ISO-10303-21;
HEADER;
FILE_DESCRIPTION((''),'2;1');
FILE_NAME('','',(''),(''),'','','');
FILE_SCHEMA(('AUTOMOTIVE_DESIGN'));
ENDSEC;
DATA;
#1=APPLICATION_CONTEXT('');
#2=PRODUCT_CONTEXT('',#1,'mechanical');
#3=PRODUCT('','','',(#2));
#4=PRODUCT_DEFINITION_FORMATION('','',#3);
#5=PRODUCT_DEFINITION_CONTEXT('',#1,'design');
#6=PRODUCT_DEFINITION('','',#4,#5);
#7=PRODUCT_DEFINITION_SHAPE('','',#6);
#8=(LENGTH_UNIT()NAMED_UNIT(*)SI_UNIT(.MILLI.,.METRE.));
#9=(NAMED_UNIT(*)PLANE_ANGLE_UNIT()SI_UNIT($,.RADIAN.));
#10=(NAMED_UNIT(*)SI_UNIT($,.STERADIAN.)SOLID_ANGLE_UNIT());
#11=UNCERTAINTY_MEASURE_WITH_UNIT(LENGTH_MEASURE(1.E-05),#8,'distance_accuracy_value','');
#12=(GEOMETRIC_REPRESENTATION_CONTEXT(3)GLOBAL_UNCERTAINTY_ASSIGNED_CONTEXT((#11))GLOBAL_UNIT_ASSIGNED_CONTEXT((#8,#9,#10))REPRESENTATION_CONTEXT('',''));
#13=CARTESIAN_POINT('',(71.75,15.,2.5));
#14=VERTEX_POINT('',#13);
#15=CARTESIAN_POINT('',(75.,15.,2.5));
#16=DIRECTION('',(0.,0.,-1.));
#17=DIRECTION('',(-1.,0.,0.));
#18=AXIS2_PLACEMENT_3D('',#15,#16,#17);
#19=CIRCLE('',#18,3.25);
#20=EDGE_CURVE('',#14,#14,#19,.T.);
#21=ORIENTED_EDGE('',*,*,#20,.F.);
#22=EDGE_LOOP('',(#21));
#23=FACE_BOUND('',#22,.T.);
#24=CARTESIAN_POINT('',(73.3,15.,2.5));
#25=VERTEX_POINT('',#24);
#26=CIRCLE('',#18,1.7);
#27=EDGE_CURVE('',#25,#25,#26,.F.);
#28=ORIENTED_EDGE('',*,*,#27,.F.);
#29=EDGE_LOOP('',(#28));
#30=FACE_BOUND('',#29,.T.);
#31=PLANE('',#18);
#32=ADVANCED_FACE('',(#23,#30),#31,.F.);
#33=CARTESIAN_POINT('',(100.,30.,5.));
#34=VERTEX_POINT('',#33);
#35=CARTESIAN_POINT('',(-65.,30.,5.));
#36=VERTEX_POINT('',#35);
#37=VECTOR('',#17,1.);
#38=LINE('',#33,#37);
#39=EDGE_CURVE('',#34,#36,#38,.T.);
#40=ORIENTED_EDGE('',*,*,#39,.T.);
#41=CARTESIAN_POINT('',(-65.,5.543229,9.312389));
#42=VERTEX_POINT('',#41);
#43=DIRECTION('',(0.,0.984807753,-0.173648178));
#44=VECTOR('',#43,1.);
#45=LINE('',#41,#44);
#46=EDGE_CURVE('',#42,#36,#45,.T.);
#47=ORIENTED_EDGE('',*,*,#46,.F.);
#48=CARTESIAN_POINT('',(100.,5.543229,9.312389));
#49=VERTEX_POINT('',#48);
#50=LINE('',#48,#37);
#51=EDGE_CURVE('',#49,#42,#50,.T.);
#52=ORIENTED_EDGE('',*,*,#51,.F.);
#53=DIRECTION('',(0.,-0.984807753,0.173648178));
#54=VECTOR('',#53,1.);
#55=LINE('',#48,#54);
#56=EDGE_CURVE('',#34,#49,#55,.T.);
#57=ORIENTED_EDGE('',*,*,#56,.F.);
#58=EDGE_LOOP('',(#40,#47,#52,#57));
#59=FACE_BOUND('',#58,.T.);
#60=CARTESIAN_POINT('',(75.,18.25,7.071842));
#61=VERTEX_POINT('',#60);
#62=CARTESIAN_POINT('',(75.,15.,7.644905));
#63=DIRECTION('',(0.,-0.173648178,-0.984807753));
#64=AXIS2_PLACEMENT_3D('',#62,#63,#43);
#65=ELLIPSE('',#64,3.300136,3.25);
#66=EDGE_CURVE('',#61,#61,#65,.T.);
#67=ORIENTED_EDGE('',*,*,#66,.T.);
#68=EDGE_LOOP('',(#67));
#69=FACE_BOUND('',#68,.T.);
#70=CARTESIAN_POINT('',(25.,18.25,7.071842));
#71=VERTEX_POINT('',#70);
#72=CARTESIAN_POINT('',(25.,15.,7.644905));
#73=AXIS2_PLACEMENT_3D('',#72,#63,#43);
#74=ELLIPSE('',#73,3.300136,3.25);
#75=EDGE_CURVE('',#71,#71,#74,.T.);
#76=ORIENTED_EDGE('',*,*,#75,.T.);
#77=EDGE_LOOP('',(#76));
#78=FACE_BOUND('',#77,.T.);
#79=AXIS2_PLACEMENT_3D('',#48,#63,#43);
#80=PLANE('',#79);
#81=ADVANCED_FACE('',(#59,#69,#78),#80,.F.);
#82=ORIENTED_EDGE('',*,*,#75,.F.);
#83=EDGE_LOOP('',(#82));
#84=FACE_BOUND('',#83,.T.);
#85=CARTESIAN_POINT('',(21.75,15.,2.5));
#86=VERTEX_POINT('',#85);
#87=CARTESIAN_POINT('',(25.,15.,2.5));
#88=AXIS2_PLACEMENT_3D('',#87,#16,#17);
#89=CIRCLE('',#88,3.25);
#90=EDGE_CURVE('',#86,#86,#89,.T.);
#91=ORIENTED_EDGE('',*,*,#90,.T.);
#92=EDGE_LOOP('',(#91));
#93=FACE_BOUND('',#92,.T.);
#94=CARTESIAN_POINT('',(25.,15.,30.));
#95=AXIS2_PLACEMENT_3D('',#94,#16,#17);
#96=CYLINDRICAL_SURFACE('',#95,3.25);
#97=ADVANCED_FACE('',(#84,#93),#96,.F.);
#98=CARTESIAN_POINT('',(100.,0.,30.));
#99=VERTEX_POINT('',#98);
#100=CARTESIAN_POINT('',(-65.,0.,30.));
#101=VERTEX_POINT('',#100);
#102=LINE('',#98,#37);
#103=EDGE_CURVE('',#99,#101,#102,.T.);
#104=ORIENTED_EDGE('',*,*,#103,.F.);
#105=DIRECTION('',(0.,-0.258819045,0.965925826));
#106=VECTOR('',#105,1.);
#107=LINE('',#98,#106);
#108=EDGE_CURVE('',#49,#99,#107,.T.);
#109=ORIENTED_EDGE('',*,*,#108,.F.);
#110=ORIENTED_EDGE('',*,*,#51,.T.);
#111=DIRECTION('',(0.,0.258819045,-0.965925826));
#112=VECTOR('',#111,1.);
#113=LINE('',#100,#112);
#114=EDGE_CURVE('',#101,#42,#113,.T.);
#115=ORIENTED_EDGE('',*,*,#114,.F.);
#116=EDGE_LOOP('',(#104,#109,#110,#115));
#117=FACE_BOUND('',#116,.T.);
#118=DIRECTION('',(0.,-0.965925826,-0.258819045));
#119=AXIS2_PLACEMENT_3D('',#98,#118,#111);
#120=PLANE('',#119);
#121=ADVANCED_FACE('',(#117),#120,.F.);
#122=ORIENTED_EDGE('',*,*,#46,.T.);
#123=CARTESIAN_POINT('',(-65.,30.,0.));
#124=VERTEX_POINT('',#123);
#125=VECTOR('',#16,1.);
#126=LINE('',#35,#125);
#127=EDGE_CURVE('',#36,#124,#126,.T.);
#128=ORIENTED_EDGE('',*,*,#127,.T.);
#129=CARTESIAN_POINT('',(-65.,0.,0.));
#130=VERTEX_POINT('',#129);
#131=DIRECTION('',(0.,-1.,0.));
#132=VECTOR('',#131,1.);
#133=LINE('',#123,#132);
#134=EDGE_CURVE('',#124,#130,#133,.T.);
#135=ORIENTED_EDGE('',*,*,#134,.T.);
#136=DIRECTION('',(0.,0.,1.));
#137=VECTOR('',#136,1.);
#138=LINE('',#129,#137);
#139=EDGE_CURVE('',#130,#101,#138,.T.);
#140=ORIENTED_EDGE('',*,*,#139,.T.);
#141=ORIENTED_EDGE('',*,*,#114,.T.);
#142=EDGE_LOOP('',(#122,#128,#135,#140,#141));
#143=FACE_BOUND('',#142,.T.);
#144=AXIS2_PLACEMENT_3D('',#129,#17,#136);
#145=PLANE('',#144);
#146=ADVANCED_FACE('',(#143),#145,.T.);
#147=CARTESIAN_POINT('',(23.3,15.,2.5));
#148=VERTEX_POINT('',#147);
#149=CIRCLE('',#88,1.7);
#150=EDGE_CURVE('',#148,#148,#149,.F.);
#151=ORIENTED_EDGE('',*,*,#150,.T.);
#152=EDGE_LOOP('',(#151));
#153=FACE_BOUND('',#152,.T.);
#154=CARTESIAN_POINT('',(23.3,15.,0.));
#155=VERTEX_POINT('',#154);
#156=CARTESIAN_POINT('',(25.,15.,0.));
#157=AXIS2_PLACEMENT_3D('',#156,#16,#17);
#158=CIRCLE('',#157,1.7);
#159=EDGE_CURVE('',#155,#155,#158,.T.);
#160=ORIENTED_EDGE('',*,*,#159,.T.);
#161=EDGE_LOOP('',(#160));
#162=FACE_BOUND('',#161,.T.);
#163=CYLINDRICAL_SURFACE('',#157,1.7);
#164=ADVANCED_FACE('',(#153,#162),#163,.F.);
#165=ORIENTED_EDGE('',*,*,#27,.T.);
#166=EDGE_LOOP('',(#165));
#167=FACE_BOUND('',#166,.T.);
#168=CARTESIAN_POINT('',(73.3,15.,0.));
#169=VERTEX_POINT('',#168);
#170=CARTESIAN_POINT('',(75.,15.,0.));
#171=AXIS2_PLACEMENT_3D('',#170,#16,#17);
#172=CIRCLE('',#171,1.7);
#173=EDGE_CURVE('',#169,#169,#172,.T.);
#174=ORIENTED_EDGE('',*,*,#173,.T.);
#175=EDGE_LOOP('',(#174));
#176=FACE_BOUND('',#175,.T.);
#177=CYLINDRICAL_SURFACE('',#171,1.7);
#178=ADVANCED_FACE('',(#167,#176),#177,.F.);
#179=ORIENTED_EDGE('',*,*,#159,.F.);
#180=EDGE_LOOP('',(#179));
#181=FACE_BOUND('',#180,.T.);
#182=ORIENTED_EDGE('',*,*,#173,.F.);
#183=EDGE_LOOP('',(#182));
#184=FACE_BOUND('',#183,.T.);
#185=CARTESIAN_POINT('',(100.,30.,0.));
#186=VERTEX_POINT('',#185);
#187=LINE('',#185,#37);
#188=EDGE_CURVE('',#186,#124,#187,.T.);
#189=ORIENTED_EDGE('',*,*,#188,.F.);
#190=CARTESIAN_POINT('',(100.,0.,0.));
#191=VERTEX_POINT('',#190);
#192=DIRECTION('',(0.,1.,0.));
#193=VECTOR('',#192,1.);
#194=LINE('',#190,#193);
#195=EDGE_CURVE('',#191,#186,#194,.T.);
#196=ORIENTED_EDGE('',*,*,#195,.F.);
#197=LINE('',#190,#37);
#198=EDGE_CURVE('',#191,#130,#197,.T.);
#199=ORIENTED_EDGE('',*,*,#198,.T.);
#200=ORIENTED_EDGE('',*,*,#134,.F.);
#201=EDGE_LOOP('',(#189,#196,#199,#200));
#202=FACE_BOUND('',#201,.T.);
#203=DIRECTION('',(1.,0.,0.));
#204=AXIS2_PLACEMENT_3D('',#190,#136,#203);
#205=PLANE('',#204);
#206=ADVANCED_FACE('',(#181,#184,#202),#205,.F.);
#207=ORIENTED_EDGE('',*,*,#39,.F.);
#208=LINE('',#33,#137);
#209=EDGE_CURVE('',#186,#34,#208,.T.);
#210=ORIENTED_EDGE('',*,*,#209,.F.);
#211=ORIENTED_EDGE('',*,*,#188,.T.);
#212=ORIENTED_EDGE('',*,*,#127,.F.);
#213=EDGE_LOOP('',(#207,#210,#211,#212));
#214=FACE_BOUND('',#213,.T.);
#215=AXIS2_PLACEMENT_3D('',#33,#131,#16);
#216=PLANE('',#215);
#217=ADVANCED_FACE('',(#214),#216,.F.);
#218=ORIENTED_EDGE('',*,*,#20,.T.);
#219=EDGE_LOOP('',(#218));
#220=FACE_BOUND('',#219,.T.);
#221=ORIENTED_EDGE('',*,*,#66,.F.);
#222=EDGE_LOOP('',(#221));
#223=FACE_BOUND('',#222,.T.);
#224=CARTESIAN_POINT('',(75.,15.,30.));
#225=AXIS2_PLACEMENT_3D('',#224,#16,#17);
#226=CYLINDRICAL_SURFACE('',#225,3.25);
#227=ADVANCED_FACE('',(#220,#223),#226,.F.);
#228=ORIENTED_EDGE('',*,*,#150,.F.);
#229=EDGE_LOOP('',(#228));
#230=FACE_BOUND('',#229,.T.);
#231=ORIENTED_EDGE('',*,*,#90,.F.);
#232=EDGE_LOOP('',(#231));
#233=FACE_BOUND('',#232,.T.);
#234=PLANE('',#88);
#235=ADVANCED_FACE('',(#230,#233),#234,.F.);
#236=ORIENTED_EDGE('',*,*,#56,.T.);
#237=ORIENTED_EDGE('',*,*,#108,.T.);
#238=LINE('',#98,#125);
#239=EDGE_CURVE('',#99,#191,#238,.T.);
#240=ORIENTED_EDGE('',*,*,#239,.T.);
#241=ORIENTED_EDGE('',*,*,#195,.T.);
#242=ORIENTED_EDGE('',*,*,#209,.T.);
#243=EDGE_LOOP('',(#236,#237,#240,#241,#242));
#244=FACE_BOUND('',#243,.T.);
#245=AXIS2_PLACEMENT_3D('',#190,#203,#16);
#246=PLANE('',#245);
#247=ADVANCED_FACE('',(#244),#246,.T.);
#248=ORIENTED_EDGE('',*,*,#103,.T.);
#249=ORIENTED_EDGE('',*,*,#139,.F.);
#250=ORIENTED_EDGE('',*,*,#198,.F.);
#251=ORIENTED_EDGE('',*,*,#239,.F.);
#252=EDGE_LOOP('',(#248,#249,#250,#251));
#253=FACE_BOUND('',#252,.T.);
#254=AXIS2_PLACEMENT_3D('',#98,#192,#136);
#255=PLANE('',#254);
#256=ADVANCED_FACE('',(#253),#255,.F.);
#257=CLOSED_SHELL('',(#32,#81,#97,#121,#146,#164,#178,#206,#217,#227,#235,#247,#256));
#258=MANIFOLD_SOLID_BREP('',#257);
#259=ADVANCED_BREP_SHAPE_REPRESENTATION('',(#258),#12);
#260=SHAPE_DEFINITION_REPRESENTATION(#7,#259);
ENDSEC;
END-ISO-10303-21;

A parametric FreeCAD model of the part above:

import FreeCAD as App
import Part
import Sketcher
from FreeCAD import Vector
Q = App.Units.Quantity

doc = App.newDocument("Part")
params = doc.addObject("Spreadsheet::Sheet", "Params")
for row, (alias, value) in enumerate([
    ("sketch1_width", "30 mm"),
    ("sketch1_height", "5 mm"),
    ("pad1_length", "100 mm"),
    ("sketch2_diameter", "3.4 mm"),
    ("hole_diameter", "3.4 mm"),
    ("sketch3_diameter", "6.5 mm"),
    ("sketch4_width", "30 mm"),
    ("sketch4_height", "5 mm"),
    ("pad2_length", "65 mm"),
], start=1):
    params.set(f"A{row}", alias)
    params.set(f"B{row}", "=" + value)
    params.setAlias(f"B{row}", alias)

body = doc.addObject("PartDesign::Body", "Body")

# Sketch on YZ plane
sketch1 = body.newObject("Sketcher::SketchObject", "Sketch")
sketch1.AttachmentSupport = (doc.getObject("YZ_Plane"), [""])
sketch1.MapMode = "FlatFace"
sketch1.addGeometry([
    Part.LineSegment(Vector(0, 0, 0), Vector(30, 0, 0)),  # 0
    Part.LineSegment(Vector(30, 0, 0), Vector(30, 5, 0)),  # 1
    Part.LineSegment(Vector(30, 5, 0), Vector(5.543229, 9.312389, 0)),  # 2
    Part.LineSegment(Vector(5.543229, 9.312389, 0), Vector(0, 30, 0)),  # 3
    Part.LineSegment(Vector(0, 30, 0), Vector(0, 0, 0)),  # 4
], False)
sketch1.addConstraint([
    Sketcher.Constraint("Coincident", 0, 2, 1, 1),
    Sketcher.Constraint("Coincident", 1, 2, 2, 1),
    Sketcher.Constraint("Coincident", 2, 2, 3, 1),
    Sketcher.Constraint("Coincident", 3, 2, 4, 1),
    Sketcher.Constraint("Coincident", 4, 2, 0, 1),
    Sketcher.Constraint("Horizontal", 0),
    Sketcher.Constraint("Vertical", 1),
    Sketcher.Constraint("Vertical", 4),
    Sketcher.Constraint("Coincident", 4, 2, -1, 1),
    Sketcher.Constraint("Equal", 0, 4),
    Sketcher.Constraint("DistanceX", 0, 1, 0, 2, Q("30 mm")),
    Sketcher.Constraint("DistanceY", 1, 1, 1, 2, Q("5 mm")),
    Sketcher.Constraint("Angle", 2, Q("170 deg")),
    Sketcher.Constraint("Angle", 3, Q("105 deg")),
])
sketch1.setExpression("Constraints[10]", "Params.sketch1_width")
sketch1.setExpression("Constraints[11]", "Params.sketch1_height")
pad1 = body.newObject("PartDesign::Pad", "Pad")
pad1.Profile = sketch1
pad1.setExpression("Length", "Params.pad1_length")

# Sketch on XY plane
sketch2 = body.newObject("Sketcher::SketchObject", "Sketch001")
sketch2.AttachmentSupport = (doc.getObject("XY_Plane"), [""])
sketch2.MapMode = "FlatFace"
sketch2.addGeometry([
    Part.Circle(Vector(25, 15, 0), Vector(0, 0, 1), 1.7),
    Part.Circle(Vector(75, 15, 0), Vector(0, 0, 1), 1.7),
], False)
sketch2.addConstraint([
    Sketcher.Constraint("Equal", 0, 1),
    Sketcher.Constraint("Horizontal", 0, 3, 1, 3),
    Sketcher.Constraint("Diameter", 0, Q("3.4 mm")),
    Sketcher.Constraint("DistanceX", -1, 1, 0, 3, Q("25 mm")),
    Sketcher.Constraint("DistanceY", -1, 1, 0, 3, Q("15 mm")),
    Sketcher.Constraint("DistanceX", -1, 1, 1, 3, Q("75 mm")),
])
sketch2.setExpression("Constraints[2]", "Params.sketch2_diameter")
doc.recompute()
hole = body.newObject("PartDesign::Hole", "Hole")
hole.Profile = sketch2
hole.ThreadType = "None"
hole.setExpression("Diameter", "Params.hole_diameter")
hole.DepthType = "ThroughAll"
hole.Reversed = True

# Sketch on XY plane
sketch3 = body.newObject("Sketcher::SketchObject", "Sketch002")
sketch3.AttachmentSupport = (doc.getObject("XY_Plane"), [""])
sketch3.MapMode = "FlatFace"
sketch3.AttachmentOffset = App.Placement(Vector(0, 0, 2.5), App.Rotation())
sketch3.addGeometry([
    Part.Circle(Vector(75, 15, 0), Vector(0, 0, 1), 3.25),
    Part.Circle(Vector(25, 15, 0), Vector(0, 0, 1), 3.25),
], False)
sketch3.addConstraint([
    Sketcher.Constraint("Equal", 0, 1),
    Sketcher.Constraint("Horizontal", 0, 3, 1, 3),
    Sketcher.Constraint("Diameter", 0, Q("6.5 mm")),
    Sketcher.Constraint("DistanceX", -1, 1, 0, 3, Q("75 mm")),
    Sketcher.Constraint("DistanceY", -1, 1, 0, 3, Q("15 mm")),
    Sketcher.Constraint("DistanceX", -1, 1, 1, 3, Q("25 mm")),
])
sketch3.setExpression("Constraints[2]", "Params.sketch3_diameter")
pocket1 = body.newObject("PartDesign::Pocket", "Pocket")
pocket1.Profile = sketch3
pocket1.Type = "ThroughAll"
pocket1.Reversed = True

# Sketch on YZ plane
sketch4 = body.newObject("Sketcher::SketchObject", "Sketch003")
sketch4.AttachmentSupport = (doc.getObject("YZ_Plane"), [""])
sketch4.MapMode = "FlatFace"
sketch4.addGeometry([
    Part.LineSegment(Vector(0, 0, 0), Vector(0, 30, 0)),  # 0
    Part.LineSegment(Vector(0, 30, 0), Vector(5.543229, 9.312389, 0)),  # 1
    Part.LineSegment(Vector(5.543229, 9.312389, 0), Vector(30, 5, 0)),  # 2
    Part.LineSegment(Vector(30, 5, 0), Vector(30, 0, 0)),  # 3
    Part.LineSegment(Vector(30, 0, 0), Vector(0, 0, 0)),  # 4
], False)
sketch4.addConstraint([
    Sketcher.Constraint("Coincident", 0, 2, 1, 1),
    Sketcher.Constraint("Coincident", 1, 2, 2, 1),
    Sketcher.Constraint("Coincident", 2, 2, 3, 1),
    Sketcher.Constraint("Coincident", 3, 2, 4, 1),
    Sketcher.Constraint("Coincident", 4, 2, 0, 1),
    Sketcher.Constraint("Vertical", 0),
    Sketcher.Constraint("Vertical", 3),
    Sketcher.Constraint("Horizontal", 4),
    Sketcher.Constraint("Coincident", 4, 2, -1, 1),
    Sketcher.Constraint("Equal", 4, 0),
    Sketcher.Constraint("DistanceX", 4, 2, 4, 1, Q("30 mm")),
    Sketcher.Constraint("DistanceY", 3, 2, 3, 1, Q("5 mm")),
    Sketcher.Constraint("Angle", 1, Q("-75 deg")),
    Sketcher.Constraint("Angle", 2, Q("-10 deg")),
])
sketch4.setExpression("Constraints[10]", "Params.sketch4_width")
sketch4.setExpression("Constraints[11]", "Params.sketch4_height")
pad2 = body.newObject("PartDesign::Pad", "Pad001")
pad2.Profile = sketch4
pad2.setExpression("Length", "Params.pad2_length")
pad2.Reversed = True

doc.recompute()
